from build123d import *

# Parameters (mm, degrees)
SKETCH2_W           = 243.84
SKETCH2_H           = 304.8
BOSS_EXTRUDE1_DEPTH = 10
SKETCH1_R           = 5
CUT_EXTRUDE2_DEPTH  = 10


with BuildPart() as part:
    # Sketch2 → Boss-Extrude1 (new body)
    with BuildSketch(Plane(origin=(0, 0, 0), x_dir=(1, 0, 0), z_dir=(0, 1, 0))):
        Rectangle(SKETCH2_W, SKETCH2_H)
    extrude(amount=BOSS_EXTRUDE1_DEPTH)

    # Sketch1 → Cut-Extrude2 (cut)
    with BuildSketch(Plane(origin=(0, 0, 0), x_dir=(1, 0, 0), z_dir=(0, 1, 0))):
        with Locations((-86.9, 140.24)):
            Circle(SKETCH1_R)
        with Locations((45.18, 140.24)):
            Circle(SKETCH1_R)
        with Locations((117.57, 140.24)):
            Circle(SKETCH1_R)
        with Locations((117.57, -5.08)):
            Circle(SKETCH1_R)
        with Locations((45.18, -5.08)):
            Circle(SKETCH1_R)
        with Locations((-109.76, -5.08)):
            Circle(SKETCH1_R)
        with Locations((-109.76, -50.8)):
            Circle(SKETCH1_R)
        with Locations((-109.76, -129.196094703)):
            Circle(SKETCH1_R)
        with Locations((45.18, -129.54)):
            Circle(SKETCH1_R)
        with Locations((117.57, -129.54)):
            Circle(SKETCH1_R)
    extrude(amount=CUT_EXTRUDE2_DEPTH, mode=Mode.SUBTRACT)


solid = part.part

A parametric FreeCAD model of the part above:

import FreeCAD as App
import Part
import Sketcher

V = App.Vector
Q = App.Units.Quantity


def add_polygon(sketch, points):
    """Adds a closed chain of lines whose ends are joined by coincident constraints."""
    first, n = sketch.GeometryCount, len(points)
    for a, b in zip(points, points[1:] + points[:1]):
        sketch.addGeometry(Part.LineSegment(App.Vector(*a, 0), App.Vector(*b, 0)), False)
    for i in range(n):
        sketch.addConstraint(Sketcher.Constraint("Coincident", first + i, 2, first + (i + 1) % n, 1))

doc = App.newDocument("Part")
body = doc.addObject("PartDesign::Body", "Body")

sketch1 = body.newObject("Sketcher::SketchObject", "Sketch")
sketch1.AttachmentSupport = (doc.getObject("XZ_Plane"), [""])
sketch1.MapMode = "FlatFace"
add_polygon(sketch1, [(-122, -152), (-122, 152), (122, 152), (122, -152)])
sketch1.addConstraint([
    Sketcher.Constraint("Vertical", 0),
    Sketcher.Constraint("Horizontal", 1),
    Sketcher.Constraint("Vertical", 2),
    Sketcher.Constraint("Horizontal", 3),
    Sketcher.Constraint("Symmetric", 0, 2, 2, 2, -1, 1),
    Sketcher.Constraint("DistanceY", 0, 1, 0, 2, Q("12 in")),
    Sketcher.Constraint("DistanceX", 1, 1, 1, 2, Q("9.6 in")),
])
pad1 = body.newObject("PartDesign::Pad", "Pad")
pad1.Profile = sketch1
pad1.Length = 10
pad1.Reversed = True

sketch2 = body.newObject("Sketcher::SketchObject", "Sketch001")
sketch2.AttachmentSupport = (doc.getObject("XZ_Plane"), [""])
sketch2.MapMode = "FlatFace"
sketch2.addGeometry([
    Part.Circle(V(-87, -140, 0), V(0, 0, 1), 5),
    Part.Circle(V(45, -140, 0), V(0, 0, 1), 5),
    Part.Circle(V(118, -140, 0), V(0, 0, 1), 5),
    Part.Circle(V(118, 5, 0), V(0, 0, 1), 5),
    Part.Circle(V(45, 5, 0), V(0, 0, 1), 5),
    Part.Circle(V(-110, 5, 0), V(0, 0, 1), 5),
    Part.Circle(V(-110, 51, 0), V(0, 0, 1), 5),
    Part.Circle(V(-110, 129, 0), V(0, 0, 1), 5),
    Part.Circle(V(45, 130, 0), V(0, 0, 1), 5),
    Part.Circle(V(118, 130, 0), V(0, 0, 1), 5),
], False)
sketch2.addConstraint([
    Sketcher.Constraint("Equal", 0, 1),
    Sketcher.Constraint("Equal", 1, 2),
    Sketcher.Constraint("Equal", 2, 3),
    Sketcher.Constraint("Equal", 3, 4),
    Sketcher.Constraint("Equal", 4, 5),
    Sketcher.Constraint("Equal", 5, 6),
    Sketcher.Constraint("Equal", 6, 7),
    Sketcher.Constraint("Equal", 7, 8),
    Sketcher.Constraint("Equal", 8, 9),
    Sketcher.Constraint("Horizontal", 0, 3, 1, 3),
    Sketcher.Constraint("Horizontal", 1, 3, 2, 3),
    Sketcher.Constraint("Horizontal", 3, 3, 4, 3),
    Sketcher.Constraint("Horizontal", 4, 3, 5, 3),
    Sketcher.Constraint("Horizontal", 8, 3, 9, 3),
    Sketcher.Constraint("Vertical", 2, 3, 3, 3),
    Sketcher.Constraint("Vertical", 1, 3, 4, 3),
    Sketcher.Constraint("Vertical", 5, 3, 6, 3),
    Sketcher.Constraint("Vertical", 6, 3, 7, 3),
    Sketcher.Constraint("Vertical", 4, 3, 8, 3),
    Sketcher.Constraint("Vertical", 3, 3, 9, 3),
    Sketcher.Constraint("DistanceY", -1, 1, 6, 3, Q("2 in")),
    Sketcher.Constraint("DistanceY", -1, 1, 3, 3, Q("0.2 in")),
    Sketcher.Constraint("DistanceY", -1, 1, 8, 3, Q("5.1 in")),
    Sketcher.Constraint("DistanceX", 0, 3, 1, 3, Q("5.2 in")),
    Sketcher.Constraint("DistanceX", 5, 3, 0, 3, Q("0.9 in")),
    Sketcher.Constraint("Diameter", 0, 10.0),
    Sketcher.Constraint("DistanceX", 1, 3, 2, 3, Q("2.85 in")),
    Sketcher.Constraint("DistanceX", 0, 3, -1, 1, 86.9),
    Sketcher.Constraint("DistanceY", 0, 3, -1, 1, 140.24),
    Sketcher.Constraint("DistanceY", -1, 1, 7, 3, 129.196095),
])
pocket1 = body.newObject("PartDesign::Pocket", "Pocket")
pocket1.Profile = sketch2
pocket1.Length = 10

doc.recompute()
